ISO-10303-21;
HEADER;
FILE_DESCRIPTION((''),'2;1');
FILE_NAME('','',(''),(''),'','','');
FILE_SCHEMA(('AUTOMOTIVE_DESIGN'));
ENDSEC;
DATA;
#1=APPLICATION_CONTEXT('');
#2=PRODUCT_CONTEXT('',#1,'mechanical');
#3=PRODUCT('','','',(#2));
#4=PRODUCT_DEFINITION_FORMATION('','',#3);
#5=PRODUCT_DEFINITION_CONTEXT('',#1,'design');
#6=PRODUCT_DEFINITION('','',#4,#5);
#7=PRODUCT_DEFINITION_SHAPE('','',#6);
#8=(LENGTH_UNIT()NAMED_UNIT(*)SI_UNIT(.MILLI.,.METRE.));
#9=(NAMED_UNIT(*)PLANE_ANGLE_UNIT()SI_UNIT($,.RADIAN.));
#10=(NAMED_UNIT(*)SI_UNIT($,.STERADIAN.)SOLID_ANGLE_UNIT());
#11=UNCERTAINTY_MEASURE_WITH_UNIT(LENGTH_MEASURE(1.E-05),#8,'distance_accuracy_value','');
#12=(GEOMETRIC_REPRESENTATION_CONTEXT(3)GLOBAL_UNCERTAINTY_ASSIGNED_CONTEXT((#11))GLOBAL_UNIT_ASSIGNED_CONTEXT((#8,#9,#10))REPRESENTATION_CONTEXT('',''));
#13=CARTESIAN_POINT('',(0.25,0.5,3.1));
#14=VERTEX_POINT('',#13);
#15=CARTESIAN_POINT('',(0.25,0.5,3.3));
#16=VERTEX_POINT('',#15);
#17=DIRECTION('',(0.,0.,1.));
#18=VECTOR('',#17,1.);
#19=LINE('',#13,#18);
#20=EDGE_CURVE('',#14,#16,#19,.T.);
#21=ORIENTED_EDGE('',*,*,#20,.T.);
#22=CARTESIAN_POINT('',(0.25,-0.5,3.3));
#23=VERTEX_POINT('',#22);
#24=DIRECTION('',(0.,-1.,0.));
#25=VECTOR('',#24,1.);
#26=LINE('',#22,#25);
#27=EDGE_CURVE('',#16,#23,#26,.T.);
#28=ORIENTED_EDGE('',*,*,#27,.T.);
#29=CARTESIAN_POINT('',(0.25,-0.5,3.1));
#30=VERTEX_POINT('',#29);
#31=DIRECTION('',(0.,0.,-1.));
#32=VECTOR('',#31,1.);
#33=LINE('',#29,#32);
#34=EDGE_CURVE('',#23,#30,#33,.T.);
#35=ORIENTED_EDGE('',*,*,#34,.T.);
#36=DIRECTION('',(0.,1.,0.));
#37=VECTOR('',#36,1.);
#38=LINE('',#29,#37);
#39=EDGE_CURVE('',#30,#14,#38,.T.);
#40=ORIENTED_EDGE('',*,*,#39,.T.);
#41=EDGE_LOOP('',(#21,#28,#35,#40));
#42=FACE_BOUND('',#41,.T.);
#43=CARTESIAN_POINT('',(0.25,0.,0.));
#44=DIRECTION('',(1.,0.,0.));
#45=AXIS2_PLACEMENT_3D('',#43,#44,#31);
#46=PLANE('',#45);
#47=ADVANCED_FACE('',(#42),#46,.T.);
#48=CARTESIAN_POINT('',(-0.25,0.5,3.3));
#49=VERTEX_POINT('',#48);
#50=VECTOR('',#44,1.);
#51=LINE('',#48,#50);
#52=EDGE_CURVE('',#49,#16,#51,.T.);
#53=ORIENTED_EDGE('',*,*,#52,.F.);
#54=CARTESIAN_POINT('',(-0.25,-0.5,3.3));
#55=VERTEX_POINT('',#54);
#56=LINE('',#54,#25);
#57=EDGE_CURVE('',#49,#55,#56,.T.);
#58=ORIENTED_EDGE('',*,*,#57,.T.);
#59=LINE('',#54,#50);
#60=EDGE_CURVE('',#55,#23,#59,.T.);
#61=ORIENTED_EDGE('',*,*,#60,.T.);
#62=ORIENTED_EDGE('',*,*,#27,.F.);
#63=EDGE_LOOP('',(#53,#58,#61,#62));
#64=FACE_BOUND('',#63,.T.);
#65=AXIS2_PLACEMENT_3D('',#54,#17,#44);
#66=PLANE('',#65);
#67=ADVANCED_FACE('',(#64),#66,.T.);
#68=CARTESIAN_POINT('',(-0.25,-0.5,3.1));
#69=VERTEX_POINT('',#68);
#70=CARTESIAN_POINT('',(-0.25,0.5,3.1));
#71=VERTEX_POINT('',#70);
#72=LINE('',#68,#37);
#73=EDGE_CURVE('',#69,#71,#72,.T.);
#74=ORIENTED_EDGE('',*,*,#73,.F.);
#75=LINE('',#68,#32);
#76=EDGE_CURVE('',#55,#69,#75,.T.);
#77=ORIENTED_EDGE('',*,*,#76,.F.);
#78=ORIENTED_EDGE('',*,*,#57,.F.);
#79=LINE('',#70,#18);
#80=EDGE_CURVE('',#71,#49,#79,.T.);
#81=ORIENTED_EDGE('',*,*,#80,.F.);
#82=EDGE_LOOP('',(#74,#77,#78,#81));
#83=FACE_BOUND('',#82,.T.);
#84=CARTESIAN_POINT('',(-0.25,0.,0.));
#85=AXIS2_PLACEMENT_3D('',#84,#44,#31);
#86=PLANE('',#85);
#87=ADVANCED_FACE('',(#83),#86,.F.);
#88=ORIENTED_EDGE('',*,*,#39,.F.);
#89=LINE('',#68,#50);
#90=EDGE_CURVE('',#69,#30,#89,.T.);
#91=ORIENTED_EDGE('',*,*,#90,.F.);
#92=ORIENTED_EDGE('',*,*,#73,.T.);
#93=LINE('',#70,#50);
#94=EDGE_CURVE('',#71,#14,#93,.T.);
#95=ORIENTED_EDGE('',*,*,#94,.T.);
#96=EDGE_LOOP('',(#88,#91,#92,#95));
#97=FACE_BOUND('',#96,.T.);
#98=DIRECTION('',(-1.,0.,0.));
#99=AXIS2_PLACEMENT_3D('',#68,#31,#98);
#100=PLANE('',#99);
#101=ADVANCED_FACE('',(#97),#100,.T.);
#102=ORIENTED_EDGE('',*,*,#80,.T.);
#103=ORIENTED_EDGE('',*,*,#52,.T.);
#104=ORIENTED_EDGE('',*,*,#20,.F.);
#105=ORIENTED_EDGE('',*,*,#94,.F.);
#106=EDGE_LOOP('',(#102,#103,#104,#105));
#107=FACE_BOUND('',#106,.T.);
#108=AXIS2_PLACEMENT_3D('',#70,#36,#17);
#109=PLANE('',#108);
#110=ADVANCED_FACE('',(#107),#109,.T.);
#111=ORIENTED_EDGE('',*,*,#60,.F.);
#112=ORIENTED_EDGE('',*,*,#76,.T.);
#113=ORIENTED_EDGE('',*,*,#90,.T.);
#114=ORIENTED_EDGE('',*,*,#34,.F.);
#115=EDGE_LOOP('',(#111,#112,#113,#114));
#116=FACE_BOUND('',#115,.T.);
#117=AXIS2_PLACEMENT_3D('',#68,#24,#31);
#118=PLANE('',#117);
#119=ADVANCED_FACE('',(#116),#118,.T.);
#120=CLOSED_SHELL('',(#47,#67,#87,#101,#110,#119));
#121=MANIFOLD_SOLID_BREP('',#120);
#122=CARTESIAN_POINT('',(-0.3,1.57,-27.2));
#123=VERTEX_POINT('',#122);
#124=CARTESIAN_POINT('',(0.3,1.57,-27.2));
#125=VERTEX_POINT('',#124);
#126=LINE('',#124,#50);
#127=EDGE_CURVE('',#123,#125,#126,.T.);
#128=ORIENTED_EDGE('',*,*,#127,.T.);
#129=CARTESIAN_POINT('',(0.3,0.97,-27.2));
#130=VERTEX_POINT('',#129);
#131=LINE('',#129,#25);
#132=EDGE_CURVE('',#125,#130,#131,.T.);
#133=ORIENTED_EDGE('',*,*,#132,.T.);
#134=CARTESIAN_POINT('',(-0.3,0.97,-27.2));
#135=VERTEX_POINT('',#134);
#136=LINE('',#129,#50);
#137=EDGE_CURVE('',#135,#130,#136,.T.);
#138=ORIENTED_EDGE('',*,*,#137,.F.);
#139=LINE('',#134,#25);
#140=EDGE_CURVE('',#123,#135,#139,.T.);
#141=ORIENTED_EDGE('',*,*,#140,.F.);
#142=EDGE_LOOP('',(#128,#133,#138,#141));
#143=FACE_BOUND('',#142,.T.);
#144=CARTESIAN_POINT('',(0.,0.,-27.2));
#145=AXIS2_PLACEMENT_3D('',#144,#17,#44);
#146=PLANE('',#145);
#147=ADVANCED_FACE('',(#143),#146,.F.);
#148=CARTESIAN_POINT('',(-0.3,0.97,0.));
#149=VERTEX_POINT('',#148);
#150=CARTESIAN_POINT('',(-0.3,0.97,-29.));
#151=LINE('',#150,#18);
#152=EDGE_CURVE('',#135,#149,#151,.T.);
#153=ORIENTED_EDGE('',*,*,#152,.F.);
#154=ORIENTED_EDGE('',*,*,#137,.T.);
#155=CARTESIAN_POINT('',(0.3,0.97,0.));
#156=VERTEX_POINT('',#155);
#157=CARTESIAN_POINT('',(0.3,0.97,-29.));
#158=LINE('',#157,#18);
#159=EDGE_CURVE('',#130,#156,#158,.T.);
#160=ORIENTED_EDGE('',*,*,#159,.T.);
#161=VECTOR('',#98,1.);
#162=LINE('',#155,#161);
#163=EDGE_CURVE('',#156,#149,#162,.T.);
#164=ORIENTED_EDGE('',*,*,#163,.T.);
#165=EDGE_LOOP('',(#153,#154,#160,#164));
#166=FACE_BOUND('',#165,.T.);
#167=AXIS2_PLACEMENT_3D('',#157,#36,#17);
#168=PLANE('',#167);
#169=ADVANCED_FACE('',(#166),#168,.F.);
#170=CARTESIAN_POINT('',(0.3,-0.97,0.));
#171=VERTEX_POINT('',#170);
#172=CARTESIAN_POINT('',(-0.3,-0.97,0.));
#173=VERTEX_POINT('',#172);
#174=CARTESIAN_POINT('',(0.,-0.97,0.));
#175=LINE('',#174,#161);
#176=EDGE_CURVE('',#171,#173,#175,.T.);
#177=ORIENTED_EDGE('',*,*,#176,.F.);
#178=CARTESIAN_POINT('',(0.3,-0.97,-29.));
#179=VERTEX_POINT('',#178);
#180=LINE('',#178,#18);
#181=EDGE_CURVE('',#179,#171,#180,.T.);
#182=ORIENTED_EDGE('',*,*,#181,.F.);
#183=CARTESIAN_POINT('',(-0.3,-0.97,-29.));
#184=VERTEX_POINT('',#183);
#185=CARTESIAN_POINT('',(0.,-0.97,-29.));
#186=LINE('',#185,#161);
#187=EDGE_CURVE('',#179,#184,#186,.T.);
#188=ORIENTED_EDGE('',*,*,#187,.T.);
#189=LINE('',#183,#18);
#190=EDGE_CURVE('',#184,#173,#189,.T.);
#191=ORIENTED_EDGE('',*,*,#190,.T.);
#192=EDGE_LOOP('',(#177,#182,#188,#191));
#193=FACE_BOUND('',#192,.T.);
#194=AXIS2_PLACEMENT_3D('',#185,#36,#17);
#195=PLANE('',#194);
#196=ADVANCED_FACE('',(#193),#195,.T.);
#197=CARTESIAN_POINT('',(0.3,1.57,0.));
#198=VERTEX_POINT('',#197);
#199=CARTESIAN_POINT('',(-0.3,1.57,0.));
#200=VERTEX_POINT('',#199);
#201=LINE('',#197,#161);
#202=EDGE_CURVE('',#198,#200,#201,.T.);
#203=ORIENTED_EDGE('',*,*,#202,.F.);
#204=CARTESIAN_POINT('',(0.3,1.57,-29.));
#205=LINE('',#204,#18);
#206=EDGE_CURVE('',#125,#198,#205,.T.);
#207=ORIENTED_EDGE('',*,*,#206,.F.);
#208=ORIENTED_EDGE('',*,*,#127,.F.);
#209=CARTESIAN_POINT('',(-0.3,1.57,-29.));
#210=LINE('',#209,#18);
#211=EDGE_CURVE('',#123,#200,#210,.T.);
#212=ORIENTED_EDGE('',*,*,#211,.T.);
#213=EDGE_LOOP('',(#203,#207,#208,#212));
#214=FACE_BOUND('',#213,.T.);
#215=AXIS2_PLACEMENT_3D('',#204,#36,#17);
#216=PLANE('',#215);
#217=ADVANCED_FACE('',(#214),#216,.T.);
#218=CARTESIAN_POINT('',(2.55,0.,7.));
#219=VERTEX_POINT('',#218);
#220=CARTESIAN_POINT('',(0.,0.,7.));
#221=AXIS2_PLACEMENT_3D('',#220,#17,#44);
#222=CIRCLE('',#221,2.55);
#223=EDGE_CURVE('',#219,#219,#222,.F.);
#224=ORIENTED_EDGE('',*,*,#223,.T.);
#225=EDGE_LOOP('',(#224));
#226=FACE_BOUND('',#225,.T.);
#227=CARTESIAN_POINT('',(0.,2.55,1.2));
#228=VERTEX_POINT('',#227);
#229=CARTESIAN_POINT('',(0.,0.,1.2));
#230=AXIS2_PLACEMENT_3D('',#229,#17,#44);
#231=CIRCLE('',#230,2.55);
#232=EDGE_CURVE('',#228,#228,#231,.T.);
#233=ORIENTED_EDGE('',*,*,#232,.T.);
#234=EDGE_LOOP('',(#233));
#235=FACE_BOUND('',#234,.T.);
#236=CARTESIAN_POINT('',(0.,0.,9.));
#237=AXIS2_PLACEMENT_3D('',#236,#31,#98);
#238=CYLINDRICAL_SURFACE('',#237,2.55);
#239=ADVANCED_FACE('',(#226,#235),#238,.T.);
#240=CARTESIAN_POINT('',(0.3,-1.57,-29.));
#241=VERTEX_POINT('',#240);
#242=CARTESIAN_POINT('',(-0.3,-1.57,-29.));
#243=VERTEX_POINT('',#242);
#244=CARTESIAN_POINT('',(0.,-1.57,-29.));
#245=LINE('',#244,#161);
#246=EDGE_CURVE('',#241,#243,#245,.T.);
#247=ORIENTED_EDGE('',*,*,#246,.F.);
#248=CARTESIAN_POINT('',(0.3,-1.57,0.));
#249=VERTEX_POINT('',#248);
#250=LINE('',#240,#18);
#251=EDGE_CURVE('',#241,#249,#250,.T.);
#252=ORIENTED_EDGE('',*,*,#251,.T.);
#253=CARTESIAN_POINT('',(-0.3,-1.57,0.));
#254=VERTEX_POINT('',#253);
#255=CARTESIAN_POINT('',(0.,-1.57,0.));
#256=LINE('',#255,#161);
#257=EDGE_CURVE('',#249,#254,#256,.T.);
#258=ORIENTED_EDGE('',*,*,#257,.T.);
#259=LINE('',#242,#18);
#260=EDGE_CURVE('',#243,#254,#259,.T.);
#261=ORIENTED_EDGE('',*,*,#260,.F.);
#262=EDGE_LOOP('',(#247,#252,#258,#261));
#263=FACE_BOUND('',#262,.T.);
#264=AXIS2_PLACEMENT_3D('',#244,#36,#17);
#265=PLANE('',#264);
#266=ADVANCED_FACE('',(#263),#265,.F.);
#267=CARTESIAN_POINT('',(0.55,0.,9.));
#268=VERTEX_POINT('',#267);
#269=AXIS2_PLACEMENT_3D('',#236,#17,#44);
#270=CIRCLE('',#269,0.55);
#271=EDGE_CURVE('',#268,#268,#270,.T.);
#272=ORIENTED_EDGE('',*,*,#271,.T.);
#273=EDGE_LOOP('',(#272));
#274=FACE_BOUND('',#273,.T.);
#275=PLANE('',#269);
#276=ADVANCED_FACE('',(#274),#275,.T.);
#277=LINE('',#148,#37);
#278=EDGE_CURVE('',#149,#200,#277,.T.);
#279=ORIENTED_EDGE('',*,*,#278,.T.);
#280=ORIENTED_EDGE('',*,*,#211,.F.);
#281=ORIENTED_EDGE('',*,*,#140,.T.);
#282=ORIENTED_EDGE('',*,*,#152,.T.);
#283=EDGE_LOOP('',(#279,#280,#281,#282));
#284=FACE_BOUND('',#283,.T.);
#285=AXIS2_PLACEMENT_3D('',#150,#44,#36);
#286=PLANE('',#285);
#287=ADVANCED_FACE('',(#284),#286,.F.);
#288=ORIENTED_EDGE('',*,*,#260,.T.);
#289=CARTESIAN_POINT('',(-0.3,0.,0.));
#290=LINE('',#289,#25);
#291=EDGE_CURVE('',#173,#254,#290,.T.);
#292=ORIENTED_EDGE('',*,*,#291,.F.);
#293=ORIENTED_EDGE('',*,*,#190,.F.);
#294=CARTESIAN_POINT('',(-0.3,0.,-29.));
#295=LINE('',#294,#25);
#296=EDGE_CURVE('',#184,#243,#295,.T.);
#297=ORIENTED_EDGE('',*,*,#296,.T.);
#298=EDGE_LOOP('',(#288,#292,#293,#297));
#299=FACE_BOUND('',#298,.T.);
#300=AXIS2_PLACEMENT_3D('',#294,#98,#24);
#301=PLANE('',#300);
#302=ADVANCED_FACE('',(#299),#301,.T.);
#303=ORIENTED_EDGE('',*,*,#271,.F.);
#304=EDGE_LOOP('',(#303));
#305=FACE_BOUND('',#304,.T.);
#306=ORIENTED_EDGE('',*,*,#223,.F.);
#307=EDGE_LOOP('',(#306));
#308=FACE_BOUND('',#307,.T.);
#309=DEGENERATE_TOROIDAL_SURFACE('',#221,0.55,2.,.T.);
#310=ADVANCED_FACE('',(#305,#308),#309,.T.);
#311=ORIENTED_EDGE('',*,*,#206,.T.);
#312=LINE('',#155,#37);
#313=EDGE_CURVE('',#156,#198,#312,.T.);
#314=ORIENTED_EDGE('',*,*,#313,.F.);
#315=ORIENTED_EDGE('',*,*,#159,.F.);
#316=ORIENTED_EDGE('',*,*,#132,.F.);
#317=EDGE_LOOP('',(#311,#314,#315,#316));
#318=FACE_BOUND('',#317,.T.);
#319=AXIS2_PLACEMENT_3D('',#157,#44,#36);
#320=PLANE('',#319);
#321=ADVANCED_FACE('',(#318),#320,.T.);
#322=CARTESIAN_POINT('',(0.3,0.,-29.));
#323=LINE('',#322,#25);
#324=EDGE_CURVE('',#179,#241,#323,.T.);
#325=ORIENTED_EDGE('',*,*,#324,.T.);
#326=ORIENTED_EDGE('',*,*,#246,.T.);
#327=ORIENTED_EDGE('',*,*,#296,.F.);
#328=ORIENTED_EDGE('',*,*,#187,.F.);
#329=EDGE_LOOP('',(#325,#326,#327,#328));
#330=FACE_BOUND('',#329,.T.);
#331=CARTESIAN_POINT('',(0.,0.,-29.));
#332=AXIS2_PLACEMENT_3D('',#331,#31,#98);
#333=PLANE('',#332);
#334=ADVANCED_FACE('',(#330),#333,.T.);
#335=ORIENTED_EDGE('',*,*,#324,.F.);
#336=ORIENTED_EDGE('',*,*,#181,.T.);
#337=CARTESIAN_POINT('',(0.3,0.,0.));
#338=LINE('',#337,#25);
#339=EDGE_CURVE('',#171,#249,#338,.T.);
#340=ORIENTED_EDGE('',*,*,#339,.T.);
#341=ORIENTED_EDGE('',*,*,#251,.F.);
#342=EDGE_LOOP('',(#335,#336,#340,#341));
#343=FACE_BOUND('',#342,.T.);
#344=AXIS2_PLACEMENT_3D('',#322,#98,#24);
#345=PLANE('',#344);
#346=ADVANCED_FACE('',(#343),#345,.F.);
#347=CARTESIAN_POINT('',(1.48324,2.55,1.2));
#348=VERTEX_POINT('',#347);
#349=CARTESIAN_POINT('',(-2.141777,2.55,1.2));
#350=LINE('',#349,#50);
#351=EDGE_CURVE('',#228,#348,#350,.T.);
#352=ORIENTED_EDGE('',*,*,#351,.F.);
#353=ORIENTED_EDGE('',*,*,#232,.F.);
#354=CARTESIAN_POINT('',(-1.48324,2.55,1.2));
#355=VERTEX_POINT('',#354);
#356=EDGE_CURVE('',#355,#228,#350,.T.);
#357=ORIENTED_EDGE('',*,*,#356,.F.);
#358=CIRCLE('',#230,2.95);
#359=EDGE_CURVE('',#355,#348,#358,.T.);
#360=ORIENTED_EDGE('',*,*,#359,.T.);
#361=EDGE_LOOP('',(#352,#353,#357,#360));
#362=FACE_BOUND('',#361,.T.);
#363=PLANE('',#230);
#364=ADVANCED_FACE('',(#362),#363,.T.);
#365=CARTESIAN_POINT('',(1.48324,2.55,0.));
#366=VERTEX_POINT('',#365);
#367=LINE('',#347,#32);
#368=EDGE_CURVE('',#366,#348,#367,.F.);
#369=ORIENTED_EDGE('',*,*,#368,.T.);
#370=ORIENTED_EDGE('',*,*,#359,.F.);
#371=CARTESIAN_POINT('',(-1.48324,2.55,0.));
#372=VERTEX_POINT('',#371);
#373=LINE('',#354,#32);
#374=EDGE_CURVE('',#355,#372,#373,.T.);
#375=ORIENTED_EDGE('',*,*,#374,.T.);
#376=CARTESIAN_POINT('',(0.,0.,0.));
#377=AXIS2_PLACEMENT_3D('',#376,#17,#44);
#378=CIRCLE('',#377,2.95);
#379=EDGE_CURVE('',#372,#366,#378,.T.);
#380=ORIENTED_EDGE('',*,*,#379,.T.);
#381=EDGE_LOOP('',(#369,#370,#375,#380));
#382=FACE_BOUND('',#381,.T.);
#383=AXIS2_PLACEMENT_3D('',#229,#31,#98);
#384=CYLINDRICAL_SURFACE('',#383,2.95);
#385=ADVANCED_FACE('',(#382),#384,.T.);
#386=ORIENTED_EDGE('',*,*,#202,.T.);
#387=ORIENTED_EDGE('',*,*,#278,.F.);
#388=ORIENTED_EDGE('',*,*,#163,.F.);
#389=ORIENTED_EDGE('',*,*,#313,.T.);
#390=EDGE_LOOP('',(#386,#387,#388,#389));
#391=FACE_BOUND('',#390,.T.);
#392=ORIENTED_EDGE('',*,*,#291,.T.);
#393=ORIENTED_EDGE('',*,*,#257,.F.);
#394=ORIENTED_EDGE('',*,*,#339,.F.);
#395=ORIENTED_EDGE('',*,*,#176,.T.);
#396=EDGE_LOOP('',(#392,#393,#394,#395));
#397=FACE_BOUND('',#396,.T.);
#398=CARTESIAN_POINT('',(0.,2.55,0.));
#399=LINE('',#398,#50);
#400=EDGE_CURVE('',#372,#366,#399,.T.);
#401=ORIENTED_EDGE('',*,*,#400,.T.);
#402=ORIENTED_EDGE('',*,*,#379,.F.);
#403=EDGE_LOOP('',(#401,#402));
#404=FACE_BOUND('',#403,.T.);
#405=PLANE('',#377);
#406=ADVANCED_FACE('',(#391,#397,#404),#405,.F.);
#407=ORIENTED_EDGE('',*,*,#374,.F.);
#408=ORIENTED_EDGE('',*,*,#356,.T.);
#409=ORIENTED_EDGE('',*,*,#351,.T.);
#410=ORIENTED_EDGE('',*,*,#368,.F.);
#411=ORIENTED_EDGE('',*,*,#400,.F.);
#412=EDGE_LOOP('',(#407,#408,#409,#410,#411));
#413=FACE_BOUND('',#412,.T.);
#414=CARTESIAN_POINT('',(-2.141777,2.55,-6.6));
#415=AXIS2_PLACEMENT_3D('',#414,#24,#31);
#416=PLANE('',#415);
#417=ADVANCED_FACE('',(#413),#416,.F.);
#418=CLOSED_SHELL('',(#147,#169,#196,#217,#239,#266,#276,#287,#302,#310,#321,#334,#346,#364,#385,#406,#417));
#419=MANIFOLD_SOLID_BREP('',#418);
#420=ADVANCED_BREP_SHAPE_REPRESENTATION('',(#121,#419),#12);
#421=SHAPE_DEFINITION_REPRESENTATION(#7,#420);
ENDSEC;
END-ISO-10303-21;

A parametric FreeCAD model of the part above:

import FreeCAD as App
import Part
import Sketcher

V = App.Vector
Q = App.Units.Quantity


def edges_at(feature, points):
    """Names of the edges that pass closest to the given points."""
    edges = feature.Shape.Edges
    near = lambda p: min(range(len(edges)), key=lambda i: edges[i].distToShape(Part.Vertex(*p))[0])
    return sorted({f"Edge{near(p) + 1}" for p in points})


def add_polygon(sketch, points):
    """Adds a closed chain of lines whose ends are joined by coincident constraints."""
    first, n = sketch.GeometryCount, len(points)
    for a, b in zip(points, points[1:] + points[:1]):
        sketch.addGeometry(Part.LineSegment(App.Vector(*a, 0), App.Vector(*b, 0)), False)
    for i in range(n):
        sketch.addConstraint(Sketcher.Constraint("Coincident", first + i, 2, first + (i + 1) % n, 1))

doc = App.newDocument("Part")
body = doc.addObject("PartDesign::Body", "Body")

# Sketch on XY plane
sketch1 = body.newObject("Sketcher::SketchObject", "Sketch")
sketch1.AttachmentSupport = (doc.getObject("XY_Plane"), [""])
sketch1.MapMode = "FlatFace"
sketch1.addGeometry(Part.Circle(V(0, 0, 0), V(0, 0, 1), 2.95), False)
sketch1.addConstraint(Sketcher.Constraint("Coincident", 0, 3, -1, 1))
sketch1.addConstraint(Sketcher.Constraint("Diameter", 0, Q("5.9 mm")))
pad1 = body.newObject("PartDesign::Pad", "Pad")
pad1.Profile = sketch1
pad1.Length = 1.2

# Sketch on XY plane
sketch2 = body.newObject("Sketcher::SketchObject", "Sketch001")
sketch2.AttachmentSupport = (doc.getObject("XY_Plane"), [""])
sketch2.MapMode = "FlatFace"
sketch2.AttachmentOffset = App.Placement(V(0, 0, 1.2), App.Rotation())
sketch2.addGeometry(Part.Circle(V(0, 0, 0), V(0, 0, 1), 2.55), False)
sketch2.addConstraint(Sketcher.Constraint("Coincident", 0, 3, -1, 1))
sketch2.addConstraint(Sketcher.Constraint("Diameter", 0, Q("5.1 mm")))
pad2 = body.newObject("PartDesign::Pad", "Pad001")
pad2.Profile = sketch2
pad2.Length = 7.8
doc.recompute()

fillet = body.newObject("PartDesign::Fillet", "Fillet")
fillet.Base = (pad2, edges_at(pad2, [(-2.55, 0, 9)]))
fillet.Radius = 2

# Sketch on XY plane
sketch3 = body.newObject("Sketcher::SketchObject", "Sketch002")
sketch3.AttachmentSupport = (doc.getObject("XY_Plane"), [""])
sketch3.MapMode = "FlatFace"
sketch3.AttachmentOffset = App.Placement(V(0, 0, 1.2), App.Rotation())
add_polygon(sketch3, [(-2.141777, 3.300281), (-2.141777, 2.55), (2.141777, 2.55), (2.141777, 3.300281)])  # lines 0-3
sketch3.addConstraint(Sketcher.Constraint("Vertical", 0))
sketch3.addConstraint(Sketcher.Constraint("Horizontal", 1))
sketch3.addConstraint(Sketcher.Constraint("Vertical", 2))
sketch3.addConstraint(Sketcher.Constraint("Horizontal", 3))
sketch3.addConstraint(Sketcher.Constraint("DistanceY", -1, 1, 0, 2, Q("2.55 mm")))
sketch3.addConstraint(Sketcher.Constraint("DistanceY", 0, 2, 0, 1, Q("0.750281 mm")))
sketch3.addConstraint(Sketcher.Constraint("DistanceX", 1, 1, 1, 2, Q("4.283555 mm")))
sketch3.addConstraint(Sketcher.Constraint("DistanceX", 0, 2, -1, 1, Q("2.141777 mm")))
pocket1 = body.newObject("PartDesign::Pocket", "Pocket")
pocket1.Profile = sketch3
pocket1.Length = 7.8

# Sketch on XY plane
sketch4 = body.newObject("Sketcher::SketchObject", "Sketch003")
sketch4.AttachmentSupport = (doc.getObject("XY_Plane"), [""])
sketch4.MapMode = "FlatFace"
add_polygon(sketch4, [(0.3, -0.97), (0.3, -1.57), (-0.3, -1.57), (-0.3, -0.97)])  # lines 0-3
add_polygon(sketch4, [(0.3, 1.57), (0.3, 0.97), (-0.3, 0.97), (-0.3, 1.57)])  # lines 4-7
sketch4.addConstraint(Sketcher.Constraint("Vertical", 0))
sketch4.addConstraint(Sketcher.Constraint("Horizontal", 1))
sketch4.addConstraint(Sketcher.Constraint("Vertical", 2))
sketch4.addConstraint(Sketcher.Constraint("Horizontal", 3))
sketch4.addConstraint(Sketcher.Constraint("Vertical", 4))
sketch4.addConstraint(Sketcher.Constraint("Horizontal", 5))
sketch4.addConstraint(Sketcher.Constraint("Vertical", 6))
sketch4.addConstraint(Sketcher.Constraint("Horizontal", 7))
sketch4.addConstraint(Sketcher.Constraint("Symmetric", 2, 2, 4, 2, -1, 1))
sketch4.addConstraint(Sketcher.Constraint("Symmetric", 0, 2, 6, 2, -1, 1))
sketch4.addConstraint(Sketcher.Constraint("Vertical", 3, 2, 4, 2))
sketch4.addConstraint(Sketcher.Constraint("Equal", 7, 0))
sketch4.addConstraint(Sketcher.Constraint("DistanceX", 1, 2, 1, 1, Q("0.6 mm")))
sketch4.addConstraint(Sketcher.Constraint("DistanceY", 0, 2, -1, 1, Q("1.57 mm")))
pad3 = body.newObject("PartDesign::Pad", "Pad002")
pad3.Profile = sketch4
pad3.Length = 29
pad3.Reversed = True

# Sketch on XY plane
sketch5 = body.newObject("Sketcher::SketchObject", "Sketch004")
sketch5.AttachmentSupport = (doc.getObject("XY_Plane"), [""])
sketch5.MapMode = "FlatFace"
sketch5.AttachmentOffset = App.Placement(V(0, 0, -29), App.Rotation())
add_polygon(sketch5, [(0.430682, 1.795241), (0.430682, 0.88873), (-0.430682, 0.88873), (-0.430682, 1.795241)])  # lines 0-3
sketch5.addConstraint(Sketcher.Constraint("Vertical", 0))
sketch5.addConstraint(Sketcher.Constraint("Horizontal", 1))
sketch5.addConstraint(Sketcher.Constraint("Vertical", 2))
sketch5.addConstraint(Sketcher.Constraint("Horizontal", 3))
sketch5.addConstraint(Sketcher.Constraint("DistanceY", 0, 2, 0, 1, Q("0.906512 mm")))
sketch5.addConstraint(Sketcher.Constraint("DistanceX", 1, 2, 1, 1, Q("0.861364 mm")))
sketch5.addConstraint(Sketcher.Constraint("DistanceY", -1, 1, 0, 2, Q("0.88873 mm")))
sketch5.addConstraint(Sketcher.Constraint("DistanceX", -1, 1, 0, 2, Q("0.430682 mm")))
pocket2 = body.newObject("PartDesign::Pocket", "Pocket001")
pocket2.Profile = sketch5
pocket2.Length = 1.8
pocket2.Reversed = True
body2 = doc.addObject("PartDesign::Body", "Body001")

# Sketch on YZ plane
sketch6 = body2.newObject("Sketcher::SketchObject", "Sketch005")
sketch6.AttachmentSupport = (doc.getObject("YZ_Plane001"), [""])
sketch6.MapMode = "FlatFace"
add_polygon(sketch6, [(0.5, 3.3), (-0.5, 3.3), (-0.5, 3.1), (0.5, 3.1)])  # lines 0-3
sketch6.addConstraint(Sketcher.Constraint("Horizontal", 0))
sketch6.addConstraint(Sketcher.Constraint("Vertical", 1))
sketch6.addConstraint(Sketcher.Constraint("Horizontal", 2))
sketch6.addConstraint(Sketcher.Constraint("Vertical", 3))
sketch6.addConstraint(Sketcher.Constraint("DistanceX", 0, 2, 0, 1, Q("1 mm")))
sketch6.addConstraint(Sketcher.Constraint("DistanceY", 1, 2, 1, 1, Q("0.2 mm")))
sketch6.addConstraint(Sketcher.Constraint("DistanceX", 0, 2, -1, 1, Q("0.5 mm")))
sketch6.addConstraint(Sketcher.Constraint("DistanceY", -1, 1, 0, 2, Q("3.3 mm")))
pad4 = body2.newObject("PartDesign::Pad", "Pad003")
pad4.Profile = sketch6
pad4.Type = "TwoLengths"
pad4.Length = 0.25
pad4.Length2 = 0.25

doc.recompute()
